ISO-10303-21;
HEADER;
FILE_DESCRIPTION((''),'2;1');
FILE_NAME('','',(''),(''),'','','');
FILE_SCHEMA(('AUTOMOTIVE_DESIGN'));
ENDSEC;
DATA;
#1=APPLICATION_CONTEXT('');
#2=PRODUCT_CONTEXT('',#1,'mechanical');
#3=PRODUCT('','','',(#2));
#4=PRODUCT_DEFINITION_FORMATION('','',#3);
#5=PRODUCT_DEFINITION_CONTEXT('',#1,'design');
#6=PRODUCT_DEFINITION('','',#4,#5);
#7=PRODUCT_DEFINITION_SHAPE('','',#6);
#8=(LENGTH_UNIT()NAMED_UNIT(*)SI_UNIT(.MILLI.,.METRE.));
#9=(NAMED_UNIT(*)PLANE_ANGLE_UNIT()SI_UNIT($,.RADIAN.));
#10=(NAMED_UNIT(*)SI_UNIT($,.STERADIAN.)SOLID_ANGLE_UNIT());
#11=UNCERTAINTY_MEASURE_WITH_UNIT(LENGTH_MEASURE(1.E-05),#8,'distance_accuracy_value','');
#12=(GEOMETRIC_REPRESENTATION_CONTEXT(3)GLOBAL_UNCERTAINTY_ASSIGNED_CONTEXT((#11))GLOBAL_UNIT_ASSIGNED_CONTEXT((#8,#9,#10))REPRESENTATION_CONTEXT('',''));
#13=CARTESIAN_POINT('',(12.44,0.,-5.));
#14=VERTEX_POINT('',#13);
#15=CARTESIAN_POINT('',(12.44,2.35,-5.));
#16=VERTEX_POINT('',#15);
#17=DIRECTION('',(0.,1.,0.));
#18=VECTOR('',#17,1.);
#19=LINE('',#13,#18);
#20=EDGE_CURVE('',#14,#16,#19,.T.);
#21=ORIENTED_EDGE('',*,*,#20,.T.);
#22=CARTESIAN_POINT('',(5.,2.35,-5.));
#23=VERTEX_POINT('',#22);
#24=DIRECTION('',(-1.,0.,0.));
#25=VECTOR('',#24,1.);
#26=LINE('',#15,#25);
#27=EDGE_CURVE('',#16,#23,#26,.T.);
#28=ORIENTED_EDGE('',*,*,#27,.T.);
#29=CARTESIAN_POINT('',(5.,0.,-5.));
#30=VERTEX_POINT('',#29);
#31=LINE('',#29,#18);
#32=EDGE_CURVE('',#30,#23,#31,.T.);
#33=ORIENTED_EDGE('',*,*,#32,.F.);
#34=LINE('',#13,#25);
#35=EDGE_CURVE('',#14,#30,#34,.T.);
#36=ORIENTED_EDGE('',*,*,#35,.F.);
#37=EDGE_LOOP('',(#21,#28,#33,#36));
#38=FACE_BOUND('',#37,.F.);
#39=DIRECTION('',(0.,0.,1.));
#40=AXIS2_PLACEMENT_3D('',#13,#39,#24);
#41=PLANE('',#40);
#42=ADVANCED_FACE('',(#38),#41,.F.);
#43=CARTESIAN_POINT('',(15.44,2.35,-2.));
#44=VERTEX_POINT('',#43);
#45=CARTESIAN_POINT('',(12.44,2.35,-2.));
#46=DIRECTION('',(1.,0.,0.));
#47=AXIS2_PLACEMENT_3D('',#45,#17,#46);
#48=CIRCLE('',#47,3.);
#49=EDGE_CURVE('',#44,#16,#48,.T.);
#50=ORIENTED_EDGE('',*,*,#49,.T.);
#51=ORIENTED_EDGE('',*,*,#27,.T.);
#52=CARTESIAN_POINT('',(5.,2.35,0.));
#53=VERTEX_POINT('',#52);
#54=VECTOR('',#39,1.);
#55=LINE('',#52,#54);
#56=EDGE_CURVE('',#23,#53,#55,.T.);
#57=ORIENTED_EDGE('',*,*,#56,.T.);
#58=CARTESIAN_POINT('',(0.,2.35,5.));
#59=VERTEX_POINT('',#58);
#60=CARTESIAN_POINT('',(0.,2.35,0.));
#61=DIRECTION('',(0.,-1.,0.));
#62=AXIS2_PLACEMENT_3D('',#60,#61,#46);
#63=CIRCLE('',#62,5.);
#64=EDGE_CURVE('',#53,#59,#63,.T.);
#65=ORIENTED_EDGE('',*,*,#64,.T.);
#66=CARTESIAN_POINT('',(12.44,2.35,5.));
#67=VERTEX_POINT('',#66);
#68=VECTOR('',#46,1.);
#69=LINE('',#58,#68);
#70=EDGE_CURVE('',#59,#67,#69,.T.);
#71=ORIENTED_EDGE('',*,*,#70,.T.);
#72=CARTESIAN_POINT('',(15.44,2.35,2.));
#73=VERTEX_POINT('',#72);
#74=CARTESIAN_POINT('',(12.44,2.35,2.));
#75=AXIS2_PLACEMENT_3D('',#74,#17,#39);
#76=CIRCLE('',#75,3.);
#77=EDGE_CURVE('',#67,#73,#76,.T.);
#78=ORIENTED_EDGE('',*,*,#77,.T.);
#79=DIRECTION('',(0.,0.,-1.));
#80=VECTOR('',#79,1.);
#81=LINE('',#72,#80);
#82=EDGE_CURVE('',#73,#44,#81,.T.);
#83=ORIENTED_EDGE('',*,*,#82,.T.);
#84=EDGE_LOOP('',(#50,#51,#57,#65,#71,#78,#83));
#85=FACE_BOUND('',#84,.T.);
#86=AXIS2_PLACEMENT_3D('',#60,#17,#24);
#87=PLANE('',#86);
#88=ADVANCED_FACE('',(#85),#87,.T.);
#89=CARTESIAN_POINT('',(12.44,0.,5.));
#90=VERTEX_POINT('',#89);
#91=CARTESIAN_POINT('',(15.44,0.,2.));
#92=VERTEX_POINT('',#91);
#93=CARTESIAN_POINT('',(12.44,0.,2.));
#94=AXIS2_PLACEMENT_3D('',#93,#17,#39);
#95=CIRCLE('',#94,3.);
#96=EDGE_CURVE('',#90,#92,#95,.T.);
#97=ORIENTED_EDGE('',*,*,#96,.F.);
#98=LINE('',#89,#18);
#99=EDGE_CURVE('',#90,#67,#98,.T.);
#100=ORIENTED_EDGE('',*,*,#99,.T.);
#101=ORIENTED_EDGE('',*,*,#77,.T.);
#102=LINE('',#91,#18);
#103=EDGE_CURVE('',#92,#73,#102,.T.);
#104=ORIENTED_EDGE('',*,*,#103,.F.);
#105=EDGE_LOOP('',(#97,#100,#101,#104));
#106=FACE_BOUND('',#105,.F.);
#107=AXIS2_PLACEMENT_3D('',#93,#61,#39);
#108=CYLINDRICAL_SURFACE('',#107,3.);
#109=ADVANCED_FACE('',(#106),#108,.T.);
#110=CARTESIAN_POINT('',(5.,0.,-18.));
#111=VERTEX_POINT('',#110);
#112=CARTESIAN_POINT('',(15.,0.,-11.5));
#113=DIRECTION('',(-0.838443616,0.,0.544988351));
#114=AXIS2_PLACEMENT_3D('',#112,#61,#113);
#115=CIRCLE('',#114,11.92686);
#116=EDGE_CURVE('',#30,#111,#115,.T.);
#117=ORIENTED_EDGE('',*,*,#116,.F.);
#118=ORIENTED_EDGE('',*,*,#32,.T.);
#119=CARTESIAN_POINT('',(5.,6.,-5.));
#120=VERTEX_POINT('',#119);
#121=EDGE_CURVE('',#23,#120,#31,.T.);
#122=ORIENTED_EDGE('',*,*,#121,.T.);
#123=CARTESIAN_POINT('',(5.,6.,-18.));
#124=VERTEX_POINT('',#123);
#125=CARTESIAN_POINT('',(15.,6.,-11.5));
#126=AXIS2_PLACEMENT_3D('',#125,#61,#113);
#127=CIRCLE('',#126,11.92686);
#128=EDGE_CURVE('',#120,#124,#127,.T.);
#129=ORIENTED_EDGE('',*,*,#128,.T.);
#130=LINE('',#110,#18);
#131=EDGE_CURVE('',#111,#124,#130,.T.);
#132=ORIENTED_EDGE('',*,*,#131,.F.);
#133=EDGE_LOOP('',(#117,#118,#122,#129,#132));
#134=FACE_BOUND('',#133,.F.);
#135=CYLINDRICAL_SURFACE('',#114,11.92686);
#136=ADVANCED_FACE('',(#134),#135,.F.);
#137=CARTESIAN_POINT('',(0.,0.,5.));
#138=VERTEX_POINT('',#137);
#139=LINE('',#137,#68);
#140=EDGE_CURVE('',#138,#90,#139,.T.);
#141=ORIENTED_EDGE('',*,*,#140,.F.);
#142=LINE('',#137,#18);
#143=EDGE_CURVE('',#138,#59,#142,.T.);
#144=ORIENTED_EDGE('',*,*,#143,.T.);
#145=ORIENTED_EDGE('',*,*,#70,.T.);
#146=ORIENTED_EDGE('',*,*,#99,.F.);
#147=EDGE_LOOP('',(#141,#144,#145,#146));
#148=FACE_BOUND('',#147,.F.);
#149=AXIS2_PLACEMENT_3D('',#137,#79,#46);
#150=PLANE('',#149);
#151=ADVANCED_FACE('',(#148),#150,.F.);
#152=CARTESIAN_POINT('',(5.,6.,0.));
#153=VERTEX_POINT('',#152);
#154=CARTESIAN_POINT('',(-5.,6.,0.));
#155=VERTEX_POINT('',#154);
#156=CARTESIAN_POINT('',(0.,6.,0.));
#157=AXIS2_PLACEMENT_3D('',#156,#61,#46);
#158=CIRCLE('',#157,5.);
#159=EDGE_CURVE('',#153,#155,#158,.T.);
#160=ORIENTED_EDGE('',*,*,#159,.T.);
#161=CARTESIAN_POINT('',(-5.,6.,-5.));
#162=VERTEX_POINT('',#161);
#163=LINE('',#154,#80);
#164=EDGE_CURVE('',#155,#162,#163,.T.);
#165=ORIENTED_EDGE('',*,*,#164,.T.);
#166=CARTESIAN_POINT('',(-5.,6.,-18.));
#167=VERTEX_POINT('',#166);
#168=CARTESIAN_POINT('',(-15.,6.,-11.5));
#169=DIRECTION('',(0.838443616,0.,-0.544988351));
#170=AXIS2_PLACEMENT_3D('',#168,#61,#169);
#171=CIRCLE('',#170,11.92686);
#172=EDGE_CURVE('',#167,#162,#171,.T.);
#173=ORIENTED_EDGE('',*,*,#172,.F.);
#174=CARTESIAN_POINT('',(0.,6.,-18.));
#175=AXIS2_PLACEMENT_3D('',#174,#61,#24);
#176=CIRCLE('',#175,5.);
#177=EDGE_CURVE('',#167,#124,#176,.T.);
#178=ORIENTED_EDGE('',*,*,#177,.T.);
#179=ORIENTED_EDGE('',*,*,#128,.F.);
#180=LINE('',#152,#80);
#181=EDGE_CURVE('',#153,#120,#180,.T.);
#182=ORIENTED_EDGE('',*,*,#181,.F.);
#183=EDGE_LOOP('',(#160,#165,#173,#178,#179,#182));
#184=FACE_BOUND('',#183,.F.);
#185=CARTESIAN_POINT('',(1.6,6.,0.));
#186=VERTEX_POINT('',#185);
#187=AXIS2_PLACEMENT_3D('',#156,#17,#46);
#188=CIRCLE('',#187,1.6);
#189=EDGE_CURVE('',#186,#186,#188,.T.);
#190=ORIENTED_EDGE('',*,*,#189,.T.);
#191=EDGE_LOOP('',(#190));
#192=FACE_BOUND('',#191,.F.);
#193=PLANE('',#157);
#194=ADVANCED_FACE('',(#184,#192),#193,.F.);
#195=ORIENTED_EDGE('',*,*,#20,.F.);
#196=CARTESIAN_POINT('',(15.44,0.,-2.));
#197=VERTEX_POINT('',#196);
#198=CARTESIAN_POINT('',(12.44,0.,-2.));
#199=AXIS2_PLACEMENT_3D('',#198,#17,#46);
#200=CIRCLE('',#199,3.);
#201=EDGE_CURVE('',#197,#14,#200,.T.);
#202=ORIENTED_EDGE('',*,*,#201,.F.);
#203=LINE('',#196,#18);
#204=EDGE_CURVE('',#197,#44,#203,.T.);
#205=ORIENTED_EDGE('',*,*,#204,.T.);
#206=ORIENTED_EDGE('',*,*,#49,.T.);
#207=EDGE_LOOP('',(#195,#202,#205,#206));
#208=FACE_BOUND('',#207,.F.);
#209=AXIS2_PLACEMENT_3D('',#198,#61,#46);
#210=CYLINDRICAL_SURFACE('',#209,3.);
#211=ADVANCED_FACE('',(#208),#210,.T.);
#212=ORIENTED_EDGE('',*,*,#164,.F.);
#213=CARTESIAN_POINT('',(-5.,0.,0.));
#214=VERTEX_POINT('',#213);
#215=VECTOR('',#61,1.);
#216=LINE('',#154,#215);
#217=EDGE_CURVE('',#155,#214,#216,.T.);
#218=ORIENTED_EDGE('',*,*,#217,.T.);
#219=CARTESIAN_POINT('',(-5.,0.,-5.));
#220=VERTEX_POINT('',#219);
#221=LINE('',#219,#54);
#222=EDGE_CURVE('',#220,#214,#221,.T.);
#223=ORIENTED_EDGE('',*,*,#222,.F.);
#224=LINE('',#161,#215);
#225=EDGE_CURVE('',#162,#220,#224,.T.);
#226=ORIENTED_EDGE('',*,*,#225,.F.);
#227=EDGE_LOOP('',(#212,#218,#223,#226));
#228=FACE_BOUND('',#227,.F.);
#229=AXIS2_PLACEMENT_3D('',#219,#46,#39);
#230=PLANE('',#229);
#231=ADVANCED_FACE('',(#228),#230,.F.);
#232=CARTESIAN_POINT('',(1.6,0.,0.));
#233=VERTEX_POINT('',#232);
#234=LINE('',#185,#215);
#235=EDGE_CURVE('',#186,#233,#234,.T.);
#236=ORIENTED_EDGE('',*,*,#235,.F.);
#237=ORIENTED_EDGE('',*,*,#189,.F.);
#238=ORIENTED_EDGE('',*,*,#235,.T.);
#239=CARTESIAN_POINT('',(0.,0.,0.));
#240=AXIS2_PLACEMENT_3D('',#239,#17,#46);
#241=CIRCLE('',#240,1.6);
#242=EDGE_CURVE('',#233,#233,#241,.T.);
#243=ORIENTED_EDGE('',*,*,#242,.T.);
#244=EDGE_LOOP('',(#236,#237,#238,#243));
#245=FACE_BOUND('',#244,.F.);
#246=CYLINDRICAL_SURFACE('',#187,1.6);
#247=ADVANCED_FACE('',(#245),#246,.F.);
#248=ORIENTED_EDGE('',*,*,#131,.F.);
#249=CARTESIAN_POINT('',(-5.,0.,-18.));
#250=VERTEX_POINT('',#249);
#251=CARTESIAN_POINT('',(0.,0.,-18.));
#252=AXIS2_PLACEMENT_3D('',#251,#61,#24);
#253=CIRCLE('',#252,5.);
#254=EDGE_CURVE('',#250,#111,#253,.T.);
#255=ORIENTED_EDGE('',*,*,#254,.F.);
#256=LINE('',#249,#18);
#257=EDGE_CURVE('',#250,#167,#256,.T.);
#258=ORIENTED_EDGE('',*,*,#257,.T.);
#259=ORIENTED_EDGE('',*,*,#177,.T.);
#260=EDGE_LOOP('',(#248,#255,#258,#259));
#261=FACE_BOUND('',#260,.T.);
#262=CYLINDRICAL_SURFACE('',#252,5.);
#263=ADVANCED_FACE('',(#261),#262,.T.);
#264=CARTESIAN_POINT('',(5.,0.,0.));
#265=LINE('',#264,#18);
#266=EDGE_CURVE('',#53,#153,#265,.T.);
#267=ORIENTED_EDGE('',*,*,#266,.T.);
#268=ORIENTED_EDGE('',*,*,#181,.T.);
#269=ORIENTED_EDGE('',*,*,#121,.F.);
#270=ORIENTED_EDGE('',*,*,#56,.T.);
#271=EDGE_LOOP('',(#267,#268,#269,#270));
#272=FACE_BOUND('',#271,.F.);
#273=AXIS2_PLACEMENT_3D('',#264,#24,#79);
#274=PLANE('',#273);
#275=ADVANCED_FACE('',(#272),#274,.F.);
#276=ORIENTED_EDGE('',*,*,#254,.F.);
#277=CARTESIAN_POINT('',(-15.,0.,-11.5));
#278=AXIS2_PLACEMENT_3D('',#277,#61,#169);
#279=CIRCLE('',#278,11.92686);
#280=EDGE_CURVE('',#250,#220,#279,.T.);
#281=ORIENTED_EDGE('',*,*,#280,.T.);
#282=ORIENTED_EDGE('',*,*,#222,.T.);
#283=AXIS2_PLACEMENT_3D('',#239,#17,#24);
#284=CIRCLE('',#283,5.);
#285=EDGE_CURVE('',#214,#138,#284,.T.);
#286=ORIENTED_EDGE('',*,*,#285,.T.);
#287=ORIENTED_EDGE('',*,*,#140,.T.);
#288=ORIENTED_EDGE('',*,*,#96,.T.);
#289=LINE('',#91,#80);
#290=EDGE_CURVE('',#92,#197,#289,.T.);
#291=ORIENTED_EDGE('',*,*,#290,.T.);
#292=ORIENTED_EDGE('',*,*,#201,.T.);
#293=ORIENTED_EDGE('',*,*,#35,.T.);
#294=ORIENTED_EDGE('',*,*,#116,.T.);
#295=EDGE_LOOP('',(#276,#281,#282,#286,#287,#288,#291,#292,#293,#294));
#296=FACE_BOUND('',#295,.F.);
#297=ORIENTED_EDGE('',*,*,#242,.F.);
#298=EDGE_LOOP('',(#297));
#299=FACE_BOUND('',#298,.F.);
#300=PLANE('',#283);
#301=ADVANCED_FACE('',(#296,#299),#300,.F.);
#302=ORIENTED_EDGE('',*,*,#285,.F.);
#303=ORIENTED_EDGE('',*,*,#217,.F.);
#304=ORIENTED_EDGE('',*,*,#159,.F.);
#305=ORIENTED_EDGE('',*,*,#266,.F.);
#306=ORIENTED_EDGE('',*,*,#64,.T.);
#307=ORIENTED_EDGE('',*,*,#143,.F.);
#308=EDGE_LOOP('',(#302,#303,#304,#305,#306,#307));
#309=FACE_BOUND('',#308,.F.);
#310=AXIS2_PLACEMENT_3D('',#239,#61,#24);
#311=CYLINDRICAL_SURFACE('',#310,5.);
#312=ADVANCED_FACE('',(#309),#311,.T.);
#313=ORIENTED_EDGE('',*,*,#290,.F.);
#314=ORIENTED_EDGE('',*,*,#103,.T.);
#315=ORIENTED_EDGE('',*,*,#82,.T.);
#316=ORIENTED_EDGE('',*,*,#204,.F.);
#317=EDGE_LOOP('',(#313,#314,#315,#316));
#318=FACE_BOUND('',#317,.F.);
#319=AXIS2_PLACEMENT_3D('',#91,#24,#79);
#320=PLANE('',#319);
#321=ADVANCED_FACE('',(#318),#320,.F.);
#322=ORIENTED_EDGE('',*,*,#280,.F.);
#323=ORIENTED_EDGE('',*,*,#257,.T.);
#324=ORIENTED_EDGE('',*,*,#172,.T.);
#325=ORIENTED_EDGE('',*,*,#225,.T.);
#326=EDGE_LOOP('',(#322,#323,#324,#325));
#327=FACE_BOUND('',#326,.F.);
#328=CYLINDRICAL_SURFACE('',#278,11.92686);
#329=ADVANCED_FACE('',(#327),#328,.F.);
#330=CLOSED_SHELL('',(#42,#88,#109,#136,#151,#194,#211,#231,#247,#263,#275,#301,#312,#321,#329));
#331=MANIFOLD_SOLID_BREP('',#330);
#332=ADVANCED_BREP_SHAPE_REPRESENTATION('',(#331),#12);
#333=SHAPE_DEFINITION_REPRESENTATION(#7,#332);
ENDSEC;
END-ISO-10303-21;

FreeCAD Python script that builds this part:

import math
import FreeCAD as App
import Part
import Sketcher
from FreeCAD import Vector
Q = App.Units.Quantity

doc = App.newDocument("Part")
body = doc.addObject("PartDesign::Body", "Body")

# Sketch on XZ plane
sketch1 = body.newObject("Sketcher::SketchObject", "Sketch")
sketch1.AttachmentSupport = (doc.getObject("XZ_Plane"), [""])
sketch1.MapMode = "FlatFace"
sketch1.addGeometry([
    Part.ArcOfCircle(Part.Circle(Vector(0, 0, 0), Vector(0, 0, 1), 5), math.radians(90), math.radians(180)),  # 0
    Part.LineSegment(Vector(0, 5, 0), Vector(12.4, 5, 0)),  # 1
    Part.ArcOfCircle(Part.Circle(Vector(12.4, 2, 0), Vector(0, 0, 1), 3), math.radians(0), math.radians(90)),  # 2
    Part.LineSegment(Vector(15.4, 2, 0), Vector(15.4, -2, 0)),  # 3
    Part.ArcOfCircle(Part.Circle(Vector(12.4, -2, 0), Vector(0, 0, 1), 3), math.radians(-90), math.radians(0)),  # 4
    Part.LineSegment(Vector(12.4, -5, 0), Vector(-5, -5, 0)),  # 5
    Part.LineSegment(Vector(-5, -5, 0), Vector(-5, 0, 0)),  # 6
], False)
sketch1.addConstraint([
    Sketcher.Constraint("Tangent", 0, 1, 1, 1),
    Sketcher.Constraint("Tangent", 1, 2, 2, 2),
    Sketcher.Constraint("Tangent", 2, 1, 3, 1),
    Sketcher.Constraint("Tangent", 3, 2, 4, 2),
    Sketcher.Constraint("Tangent", 4, 1, 5, 1),
    Sketcher.Constraint("Coincident", 5, 2, 6, 1),
    Sketcher.Constraint("Tangent", 6, 2, 0, 2),
    Sketcher.Constraint("Horizontal", 1),
    Sketcher.Constraint("Vertical", 3),
    Sketcher.Constraint("Horizontal", 5),
    Sketcher.Constraint("Vertical", 6),
    Sketcher.Constraint("Coincident", 0, 3, -1, 1),
    Sketcher.Constraint("Equal", 2, 4),
    Sketcher.Constraint("Radius", 0, Q("5 mm")),
    Sketcher.Constraint("Radius", 2, Q("3 mm")),
    Sketcher.Constraint("DistanceY", 6, 1, 6, 2, Q("5 mm")),
    Sketcher.Constraint("DistanceX", 1, 1, 1, 2, Q("12.44 mm")),
])
pad1 = body.newObject("PartDesign::Pad", "Pad")
pad1.Profile = sketch1
pad1.Length = 2.35
pad1.Reversed = True

# Sketch on XZ plane
sketch2 = body.newObject("Sketcher::SketchObject", "Sketch001")
sketch2.AttachmentSupport = (doc.getObject("XZ_Plane"), [""])
sketch2.MapMode = "FlatFace"
sketch2.addGeometry([
    Part.LineSegment(Vector(5, -5, 0), Vector(5, 0, 0)),  # 0
    Part.ArcOfCircle(Part.Circle(Vector(0, 0, 0), Vector(0, 0, 1), 5), math.radians(0), math.radians(180)),  # 1
    Part.LineSegment(Vector(-5, 0, 0), Vector(-5, -5, 0)),  # 2
    Part.ArcOfCircle(Part.Circle(Vector(-15, -12, 0), Vector(0, 0, 1), 12), math.radians(-33), math.radians(33)),  # 3
    Part.ArcOfCircle(Part.Circle(Vector(0, -18, 0), Vector(0, 0, 1), 5), math.radians(180), math.radians(360)),  # 4
    Part.ArcOfCircle(Part.Circle(Vector(15, -12, 0), Vector(0, 0, 1), 12), math.radians(147), math.radians(213)),  # 5
], False)
sketch2.addConstraint([
    Sketcher.Constraint("Tangent", 0, 2, 1, 1),
    Sketcher.Constraint("Tangent", 1, 2, 2, 1),
    Sketcher.Constraint("Coincident", 2, 2, 3, 2),
    Sketcher.Constraint("Coincident", 3, 1, 4, 1),
    Sketcher.Constraint("Coincident", 4, 2, 5, 2),
    Sketcher.Constraint("Coincident", 5, 1, 0, 1),
    Sketcher.Constraint("Vertical", 0),
    Sketcher.Constraint("Vertical", 2),
    Sketcher.Constraint("Coincident", 1, 3, -1, 1),
    Sketcher.Constraint("Equal", 1, 4),
    Sketcher.Constraint("Equal", 3, 5),
    Sketcher.Constraint("Symmetric", 3, 3, 5, 3, -2),
    Sketcher.Constraint("PointOnObject", 4, 3, -2),
    Sketcher.Constraint("Horizontal", 4, 3, 3, 1),
    Sketcher.Constraint("Radius", 1, Q("5 mm")),
    Sketcher.Constraint("DistanceY", 0, 1, 0, 2, Q("5 mm")),
    Sketcher.Constraint("DistanceX", 3, 3, -1, 1, Q("15 mm")),
    Sketcher.Constraint("DistanceY", 4, 3, -1, 1, Q("18 mm")),
])
pad2 = body.newObject("PartDesign::Pad", "Pad001")
pad2.Profile = sketch2
pad2.Length = 6
pad2.Reversed = True

# Sketch on XZ plane
sketch3 = body.newObject("Sketcher::SketchObject", "Sketch002")
sketch3.AttachmentSupport = (doc.getObject("XZ_Plane"), [""])
sketch3.MapMode = "FlatFace"
sketch3.AttachmentOffset = App.Placement(Vector(0, 0, -6), App.Rotation())
sketch3.addGeometry(Part.Circle(Vector(0, 0, 0), Vector(0, 0, 1), 1.6), False)
sketch3.addConstraint([
    Sketcher.Constraint("Coincident", 0, 3, -1, 1),
    Sketcher.Constraint("Diameter", 0, Q("3.2 mm")),
])
pocket1 = body.newObject("PartDesign::Pocket", "Pocket")
pocket1.Profile = sketch3
pocket1.Type = "UpToFirst"
pocket1.Reversed = True

doc.recompute()
